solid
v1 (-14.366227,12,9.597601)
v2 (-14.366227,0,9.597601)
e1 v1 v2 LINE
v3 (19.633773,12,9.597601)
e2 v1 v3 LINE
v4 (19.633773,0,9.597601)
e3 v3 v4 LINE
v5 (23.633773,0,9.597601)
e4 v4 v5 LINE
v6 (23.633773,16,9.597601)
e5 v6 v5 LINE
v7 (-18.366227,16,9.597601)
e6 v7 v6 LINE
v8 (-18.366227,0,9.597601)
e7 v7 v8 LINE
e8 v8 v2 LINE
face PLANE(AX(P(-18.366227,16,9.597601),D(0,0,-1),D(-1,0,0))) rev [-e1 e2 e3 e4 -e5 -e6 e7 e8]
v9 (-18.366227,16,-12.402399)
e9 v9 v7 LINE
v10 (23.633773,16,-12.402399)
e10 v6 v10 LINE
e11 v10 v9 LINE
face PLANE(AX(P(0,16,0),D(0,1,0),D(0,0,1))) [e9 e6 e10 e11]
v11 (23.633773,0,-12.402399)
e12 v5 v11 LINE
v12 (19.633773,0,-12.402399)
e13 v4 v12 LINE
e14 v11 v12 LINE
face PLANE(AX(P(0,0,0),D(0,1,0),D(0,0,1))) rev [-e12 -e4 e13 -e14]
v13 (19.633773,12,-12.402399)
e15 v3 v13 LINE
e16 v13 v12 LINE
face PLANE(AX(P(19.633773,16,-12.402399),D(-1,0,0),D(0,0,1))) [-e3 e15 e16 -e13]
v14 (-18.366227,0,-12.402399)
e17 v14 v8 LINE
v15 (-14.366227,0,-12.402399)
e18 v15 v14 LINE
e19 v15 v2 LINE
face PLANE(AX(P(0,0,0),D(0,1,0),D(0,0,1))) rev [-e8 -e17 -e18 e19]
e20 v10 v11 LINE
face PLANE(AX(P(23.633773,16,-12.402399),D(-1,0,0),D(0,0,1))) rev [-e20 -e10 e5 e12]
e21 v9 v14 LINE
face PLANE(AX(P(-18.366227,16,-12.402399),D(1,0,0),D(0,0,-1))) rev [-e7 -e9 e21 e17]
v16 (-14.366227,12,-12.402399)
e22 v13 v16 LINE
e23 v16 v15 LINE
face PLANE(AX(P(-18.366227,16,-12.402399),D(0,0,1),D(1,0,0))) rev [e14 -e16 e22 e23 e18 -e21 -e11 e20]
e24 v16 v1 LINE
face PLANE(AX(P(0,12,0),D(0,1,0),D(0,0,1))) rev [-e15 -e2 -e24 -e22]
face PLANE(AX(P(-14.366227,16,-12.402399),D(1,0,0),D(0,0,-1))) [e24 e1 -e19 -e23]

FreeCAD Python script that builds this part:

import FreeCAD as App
import Part
import Sketcher
Q = App.Units.Quantity


def faces_at(feature, points):
    """Names of the faces that lie closest to the given points."""
    faces = feature.Shape.Faces
    near = lambda p: min(range(len(faces)), key=lambda i: faces[i].distToShape(Part.Vertex(*p))[0])
    return sorted({f"Face{near(p) + 1}" for p in points})


def add_polygon(sketch, points):
    """Adds a closed chain of lines whose ends are joined by coincident constraints."""
    first, n = sketch.GeometryCount, len(points)
    for a, b in zip(points, points[1:] + points[:1]):
        sketch.addGeometry(Part.LineSegment(App.Vector(*a, 0), App.Vector(*b, 0)), False)
    for i in range(n):
        sketch.addConstraint(Sketcher.Constraint("Coincident", first + i, 2, first + (i + 1) % n, 1))

doc = App.newDocument("Part")
body = doc.addObject("PartDesign::Body", "Body")

sketch1 = doc.addObject("Sketcher::SketchObject", "Sketch")
body.addObject(sketch1)
sketch1.AttachmentSupport = (doc.XZ_Plane, [""])
sketch1.MapMode = "FlatFace"
add_polygon(sketch1, [(-18, -12), (-18, 10), (24, 10), (24, -12)])
sketch1.addConstraint([
    Sketcher.Constraint("Vertical", 0),
    Sketcher.Constraint("Horizontal", 1),
    Sketcher.Constraint("Vertical", 2),
    Sketcher.Constraint("Horizontal", 3),
    Sketcher.Constraint("DistanceX", 1, 1, 1, 2, Q("42 mm")),
    Sketcher.Constraint("DistanceY", 0, 1, 0, 2, Q("22 mm")),
    Sketcher.Constraint("DistanceY", -1, 1, 0, 2, Q("9.597601 mm")),
    Sketcher.Constraint("DistanceX", 0, 2, -1, 1, Q("18.366227 mm")),
])
pad1 = doc.addObject("PartDesign::Pad", "Pad")
body.addObject(pad1)
pad1.Profile = sketch1
pad1.Length = 16
pad1.Reversed = True
doc.recompute()

thickness = doc.addObject("PartDesign::Thickness", "Thickness")
body.addObject(thickness)
thickness.Base = (pad1, faces_at(pad1, [(2.634, 0, -1.402), (2.634, 8, -12.402), (2.634, 8, 9.598)]))
thickness.Value = 4
thickness.Reversed = True
thickness.Join = "Intersection"

doc.recompute()
